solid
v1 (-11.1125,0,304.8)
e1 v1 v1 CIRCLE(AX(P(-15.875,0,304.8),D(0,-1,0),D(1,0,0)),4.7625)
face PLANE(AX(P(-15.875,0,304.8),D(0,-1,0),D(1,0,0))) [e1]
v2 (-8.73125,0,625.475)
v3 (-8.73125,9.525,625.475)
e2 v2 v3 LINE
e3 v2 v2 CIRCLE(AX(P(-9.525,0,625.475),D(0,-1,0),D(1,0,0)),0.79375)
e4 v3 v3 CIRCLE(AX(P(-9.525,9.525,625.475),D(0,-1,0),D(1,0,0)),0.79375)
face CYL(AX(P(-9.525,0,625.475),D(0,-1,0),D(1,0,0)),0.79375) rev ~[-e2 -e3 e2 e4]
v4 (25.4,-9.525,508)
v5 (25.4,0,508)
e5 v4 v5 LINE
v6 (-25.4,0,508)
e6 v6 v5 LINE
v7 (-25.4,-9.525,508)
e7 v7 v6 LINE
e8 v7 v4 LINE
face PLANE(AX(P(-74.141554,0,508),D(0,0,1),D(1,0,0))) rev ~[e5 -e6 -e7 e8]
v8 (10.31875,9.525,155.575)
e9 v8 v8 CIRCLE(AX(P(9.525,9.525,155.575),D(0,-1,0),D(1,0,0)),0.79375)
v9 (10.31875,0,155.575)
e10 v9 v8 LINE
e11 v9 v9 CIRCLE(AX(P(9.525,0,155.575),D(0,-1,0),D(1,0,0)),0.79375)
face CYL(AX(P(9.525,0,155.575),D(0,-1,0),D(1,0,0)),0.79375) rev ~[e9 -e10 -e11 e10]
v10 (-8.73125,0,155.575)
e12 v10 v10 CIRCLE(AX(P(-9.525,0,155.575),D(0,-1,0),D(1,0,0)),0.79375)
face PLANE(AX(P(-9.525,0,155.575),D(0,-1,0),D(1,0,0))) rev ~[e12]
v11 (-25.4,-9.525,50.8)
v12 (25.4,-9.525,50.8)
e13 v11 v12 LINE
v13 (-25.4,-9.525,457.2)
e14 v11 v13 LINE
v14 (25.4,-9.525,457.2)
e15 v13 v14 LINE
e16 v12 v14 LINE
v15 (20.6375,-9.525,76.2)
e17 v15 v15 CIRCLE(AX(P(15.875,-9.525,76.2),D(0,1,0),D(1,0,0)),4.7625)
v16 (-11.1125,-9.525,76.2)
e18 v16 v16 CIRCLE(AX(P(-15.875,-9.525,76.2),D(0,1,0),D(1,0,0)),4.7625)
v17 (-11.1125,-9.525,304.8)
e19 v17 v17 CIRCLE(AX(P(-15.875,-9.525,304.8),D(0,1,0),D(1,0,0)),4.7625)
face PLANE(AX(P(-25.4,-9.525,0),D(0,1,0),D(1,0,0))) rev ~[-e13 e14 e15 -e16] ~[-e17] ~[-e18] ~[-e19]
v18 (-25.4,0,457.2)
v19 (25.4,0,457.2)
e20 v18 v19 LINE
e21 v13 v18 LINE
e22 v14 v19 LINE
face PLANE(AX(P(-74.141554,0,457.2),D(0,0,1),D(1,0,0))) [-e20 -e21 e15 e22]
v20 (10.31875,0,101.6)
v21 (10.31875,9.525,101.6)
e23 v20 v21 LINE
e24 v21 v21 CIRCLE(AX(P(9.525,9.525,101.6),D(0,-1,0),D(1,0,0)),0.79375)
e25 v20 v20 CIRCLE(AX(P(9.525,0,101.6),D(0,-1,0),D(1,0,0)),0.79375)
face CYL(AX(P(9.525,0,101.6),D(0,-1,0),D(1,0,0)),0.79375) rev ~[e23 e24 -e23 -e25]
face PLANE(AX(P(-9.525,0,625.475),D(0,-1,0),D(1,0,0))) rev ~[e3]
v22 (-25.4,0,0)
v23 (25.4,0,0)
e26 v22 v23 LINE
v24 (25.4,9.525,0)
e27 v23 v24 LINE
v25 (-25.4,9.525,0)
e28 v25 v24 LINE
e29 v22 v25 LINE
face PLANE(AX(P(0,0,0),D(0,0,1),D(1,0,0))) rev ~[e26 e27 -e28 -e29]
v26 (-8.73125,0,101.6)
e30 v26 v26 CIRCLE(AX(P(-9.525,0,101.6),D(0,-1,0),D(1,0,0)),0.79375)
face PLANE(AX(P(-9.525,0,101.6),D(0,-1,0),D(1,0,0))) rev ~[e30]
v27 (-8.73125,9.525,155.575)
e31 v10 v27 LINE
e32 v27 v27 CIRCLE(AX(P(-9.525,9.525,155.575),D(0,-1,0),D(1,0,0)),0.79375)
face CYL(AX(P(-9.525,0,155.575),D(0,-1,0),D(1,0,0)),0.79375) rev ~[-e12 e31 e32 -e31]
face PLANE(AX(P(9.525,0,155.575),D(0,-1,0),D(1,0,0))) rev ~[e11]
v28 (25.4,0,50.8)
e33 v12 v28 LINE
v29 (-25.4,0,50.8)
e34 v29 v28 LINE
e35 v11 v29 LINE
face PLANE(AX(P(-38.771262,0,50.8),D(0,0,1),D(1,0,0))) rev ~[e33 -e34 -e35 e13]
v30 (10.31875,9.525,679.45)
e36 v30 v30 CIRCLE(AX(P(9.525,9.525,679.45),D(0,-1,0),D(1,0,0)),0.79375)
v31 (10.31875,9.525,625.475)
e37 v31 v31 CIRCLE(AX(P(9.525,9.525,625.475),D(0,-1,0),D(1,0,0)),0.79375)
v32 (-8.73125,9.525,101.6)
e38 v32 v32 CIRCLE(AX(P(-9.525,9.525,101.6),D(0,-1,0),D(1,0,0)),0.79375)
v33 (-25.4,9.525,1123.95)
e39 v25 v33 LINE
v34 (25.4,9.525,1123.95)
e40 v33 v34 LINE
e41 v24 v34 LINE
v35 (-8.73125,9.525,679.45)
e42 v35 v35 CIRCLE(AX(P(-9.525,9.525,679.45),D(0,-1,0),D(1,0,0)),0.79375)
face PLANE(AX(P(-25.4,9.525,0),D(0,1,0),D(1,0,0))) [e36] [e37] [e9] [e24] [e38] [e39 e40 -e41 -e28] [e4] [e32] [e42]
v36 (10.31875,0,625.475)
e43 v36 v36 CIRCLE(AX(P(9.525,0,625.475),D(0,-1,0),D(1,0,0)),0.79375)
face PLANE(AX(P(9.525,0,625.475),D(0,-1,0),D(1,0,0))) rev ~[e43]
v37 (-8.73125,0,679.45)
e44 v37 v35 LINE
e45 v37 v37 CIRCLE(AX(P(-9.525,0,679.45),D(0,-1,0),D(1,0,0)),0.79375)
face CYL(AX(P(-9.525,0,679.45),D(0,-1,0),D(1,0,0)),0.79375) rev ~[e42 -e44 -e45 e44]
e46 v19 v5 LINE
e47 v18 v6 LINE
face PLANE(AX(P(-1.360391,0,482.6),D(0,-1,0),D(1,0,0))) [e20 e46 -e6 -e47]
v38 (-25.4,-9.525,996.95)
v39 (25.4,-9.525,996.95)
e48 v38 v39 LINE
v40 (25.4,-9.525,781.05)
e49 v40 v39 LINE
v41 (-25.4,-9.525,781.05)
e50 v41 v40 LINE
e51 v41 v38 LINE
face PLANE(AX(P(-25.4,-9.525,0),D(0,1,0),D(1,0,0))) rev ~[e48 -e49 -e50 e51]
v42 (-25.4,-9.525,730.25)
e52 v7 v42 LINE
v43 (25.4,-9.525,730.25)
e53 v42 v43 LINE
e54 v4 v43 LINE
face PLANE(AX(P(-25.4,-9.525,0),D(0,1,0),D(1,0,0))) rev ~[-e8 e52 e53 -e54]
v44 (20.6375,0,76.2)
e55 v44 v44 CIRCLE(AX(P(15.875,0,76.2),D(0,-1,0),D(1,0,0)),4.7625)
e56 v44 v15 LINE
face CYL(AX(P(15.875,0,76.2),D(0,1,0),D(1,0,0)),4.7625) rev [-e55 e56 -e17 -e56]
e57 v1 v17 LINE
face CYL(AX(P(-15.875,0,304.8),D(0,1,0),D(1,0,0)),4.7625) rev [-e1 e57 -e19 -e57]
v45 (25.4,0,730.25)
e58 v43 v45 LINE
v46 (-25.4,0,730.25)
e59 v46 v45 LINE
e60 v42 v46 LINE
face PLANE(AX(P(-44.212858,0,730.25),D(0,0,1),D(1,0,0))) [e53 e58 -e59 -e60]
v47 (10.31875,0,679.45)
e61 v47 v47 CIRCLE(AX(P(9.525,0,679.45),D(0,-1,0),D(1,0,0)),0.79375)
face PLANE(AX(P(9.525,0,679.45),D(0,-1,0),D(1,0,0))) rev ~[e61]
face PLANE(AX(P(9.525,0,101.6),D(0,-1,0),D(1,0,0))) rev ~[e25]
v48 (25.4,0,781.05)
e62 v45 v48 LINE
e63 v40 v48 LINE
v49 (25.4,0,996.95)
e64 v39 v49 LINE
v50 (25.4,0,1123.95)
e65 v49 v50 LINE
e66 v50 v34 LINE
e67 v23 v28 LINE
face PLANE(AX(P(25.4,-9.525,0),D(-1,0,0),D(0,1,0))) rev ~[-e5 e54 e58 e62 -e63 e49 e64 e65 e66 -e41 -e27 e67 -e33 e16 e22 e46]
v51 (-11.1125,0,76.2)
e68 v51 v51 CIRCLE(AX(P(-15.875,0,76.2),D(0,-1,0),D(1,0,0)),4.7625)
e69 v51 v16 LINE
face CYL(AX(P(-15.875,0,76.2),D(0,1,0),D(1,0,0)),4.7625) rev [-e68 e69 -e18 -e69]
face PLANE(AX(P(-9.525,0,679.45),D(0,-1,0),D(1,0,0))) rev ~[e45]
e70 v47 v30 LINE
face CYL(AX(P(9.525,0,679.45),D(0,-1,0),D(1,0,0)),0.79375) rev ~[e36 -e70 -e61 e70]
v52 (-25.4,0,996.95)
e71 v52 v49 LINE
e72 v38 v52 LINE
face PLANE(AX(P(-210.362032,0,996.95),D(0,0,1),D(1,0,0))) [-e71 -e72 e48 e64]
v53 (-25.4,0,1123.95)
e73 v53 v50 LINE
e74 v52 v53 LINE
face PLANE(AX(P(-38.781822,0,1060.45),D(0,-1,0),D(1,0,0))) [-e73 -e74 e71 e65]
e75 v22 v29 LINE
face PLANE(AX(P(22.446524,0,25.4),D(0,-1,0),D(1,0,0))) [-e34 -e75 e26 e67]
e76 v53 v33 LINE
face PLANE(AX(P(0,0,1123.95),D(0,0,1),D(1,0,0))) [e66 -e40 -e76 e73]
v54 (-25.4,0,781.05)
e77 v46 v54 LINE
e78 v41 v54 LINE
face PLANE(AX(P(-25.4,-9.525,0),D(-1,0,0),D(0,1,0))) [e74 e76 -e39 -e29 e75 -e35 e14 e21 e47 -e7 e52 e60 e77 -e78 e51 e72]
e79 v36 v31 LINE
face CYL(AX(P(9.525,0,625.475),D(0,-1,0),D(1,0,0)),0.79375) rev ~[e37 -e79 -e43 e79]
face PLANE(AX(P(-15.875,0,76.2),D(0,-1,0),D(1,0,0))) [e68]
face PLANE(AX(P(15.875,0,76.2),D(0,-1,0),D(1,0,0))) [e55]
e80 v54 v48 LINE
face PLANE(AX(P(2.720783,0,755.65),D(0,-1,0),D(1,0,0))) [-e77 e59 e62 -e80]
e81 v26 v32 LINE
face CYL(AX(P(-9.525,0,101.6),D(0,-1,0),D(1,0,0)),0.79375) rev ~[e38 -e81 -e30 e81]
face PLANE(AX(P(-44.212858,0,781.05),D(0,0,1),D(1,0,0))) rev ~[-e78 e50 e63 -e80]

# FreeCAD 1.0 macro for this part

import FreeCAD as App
import Part
import Sketcher

V = App.Vector
Q = App.Units.Quantity


def add_polygon(sketch, points):
    """Adds a closed chain of lines whose ends are joined by coincident constraints."""
    first, n = sketch.GeometryCount, len(points)
    for a, b in zip(points, points[1:] + points[:1]):
        sketch.addGeometry(Part.LineSegment(App.Vector(*a, 0), App.Vector(*b, 0)), False)
    for i in range(n):
        sketch.addConstraint(Sketcher.Constraint("Coincident", first + i, 2, first + (i + 1) % n, 1))

doc = App.newDocument("Part")
params = doc.addObject("Spreadsheet::Sheet", "Params")
for row, (alias, value) in enumerate([
    ("sketch1_width", "2 in"),
    ("sketch1_height", "0.75 in"),
    ("pad1_length", "44.25 in"),
    ("sketch2_height", "2 in"),
    ("sketch2_height2", "5 in"),
    ("pocket1_length", "1 in"),
    ("sketch3_diameter", "0.0625 in"),
    ("pocket2_length", "1 in"),
    ("sketch4_diameter", "0.375 in"),
    ("pocket3_length", "1 in"),
], start=1):
    params.set(f"A{row}", alias)
    params.set(f"B{row}", "=" + value)
    params.setAlias(f"B{row}", alias)

body = doc.addObject("PartDesign::Body", "Body")

sketch1 = body.newObject("Sketcher::SketchObject", "Sketch")
sketch1.AttachmentSupport = (doc.getObject("XY_Plane"), [""])
sketch1.MapMode = "FlatFace"
add_polygon(sketch1, [(-25, 10), (-25, -10), (25, -10), (25, 10)])
sketch1.addConstraint([
    Sketcher.Constraint("Vertical", 0),
    Sketcher.Constraint("Horizontal", 1),
    Sketcher.Constraint("Vertical", 2),
    Sketcher.Constraint("Horizontal", 3),
    Sketcher.Constraint("Symmetric", 0, 2, 2, 2, -1, 1),
    Sketcher.Constraint("DistanceX", 1, 1, 1, 2, Q("2 in")),
    Sketcher.Constraint("DistanceY", 0, 2, 0, 1, Q("0.75 in")),
])
sketch1.setExpression("Constraints[9]", "Params.sketch1_width")
sketch1.setExpression("Constraints[10]", "Params.sketch1_height")
pad1 = body.newObject("PartDesign::Pad", "Pad")
pad1.Profile = sketch1
pad1.setExpression("Length", "Params.pad1_length")

sketch2 = body.newObject("Sketcher::SketchObject", "Sketch001")
sketch2.AttachmentSupport = (doc.getObject("XZ_Plane"), [""])
sketch2.MapMode = "FlatFace"
add_polygon(sketch2, [(-39, 51), (-39, 0), (84, 0), (84, 51)])
add_polygon(sketch2, [(-44, 781), (-44, 730), (50, 730), (50, 781)])
add_polygon(sketch2, [(-74, 508), (-74, 457), (71, 457), (71, 508)])
add_polygon(sketch2, [(-210, 1124), (-210, 997), (133, 997), (133, 1124)])
sketch2.addConstraint([
    Sketcher.Constraint("Vertical", 0),
    Sketcher.Constraint("Horizontal", 1),
    Sketcher.Constraint("Vertical", 2),
    Sketcher.Constraint("Horizontal", 3),
    Sketcher.Constraint("Vertical", 4),
    Sketcher.Constraint("Horizontal", 5),
    Sketcher.Constraint("Vertical", 6),
    Sketcher.Constraint("Horizontal", 7),
    Sketcher.Constraint("Vertical", 8),
    Sketcher.Constraint("Horizontal", 9),
    Sketcher.Constraint("Vertical", 10),
    Sketcher.Constraint("Horizontal", 11),
    Sketcher.Constraint("Vertical", 12),
    Sketcher.Constraint("Horizontal", 13),
    Sketcher.Constraint("Vertical", 14),
    Sketcher.Constraint("Horizontal", 15),
    Sketcher.Constraint("PointOnObject", 0, 2, -1),
    Sketcher.Constraint("Equal", 2, 4),
    Sketcher.Constraint("Equal", 6, 8),
    Sketcher.Constraint("DistanceY", 0, 2, 0, 1, Q("2 in")),
    Sketcher.Constraint("DistanceY", 12, 2, 12, 1, Q("5 in")),
    Sketcher.Constraint("DistanceY", -1, 1, 8, 2, Q("18 in")),
    Sketcher.Constraint("DistanceY", 7, 2, 12, 2, Q("8.5 in")),
    Sketcher.Constraint("DistanceY", -1, 1, 4, 2, Q("28.75 in")),
    Sketcher.Constraint("DistanceX", 9, 1, 9, 2, Q("5.7308002 in")),
    Sketcher.Constraint("DistanceX", 5, 1, 5, 2, Q("93.867282 mm")),
    Sketcher.Constraint("DistanceX", 13, 1, 13, 2, Q("343.160421 mm")),
    Sketcher.Constraint("DistanceX", 1, 1, 1, 2, Q("122.435573 mm")),
    Sketcher.Constraint("DistanceX", -1, 1, 1, 2, Q("83.66431 mm")),
    Sketcher.Constraint("DistanceX", -1, 1, 9, 2, Q("71.420772 mm")),
    Sketcher.Constraint("DistanceX", -1, 1, 13, 2, Q("132.798388 mm")),
    Sketcher.Constraint("DistanceX", 4, 2, 2, 2, Q("127.877168 mm")),
])
sketch2.setExpression("Constraints[35]", "Params.sketch2_height")
sketch2.setExpression("Constraints[36]", "Params.sketch2_height2")
pocket1 = body.newObject("PartDesign::Pocket", "Pocket")
pocket1.Profile = sketch2
pocket1.setExpression("Length", "Params.pocket1_length")
pocket1.Reversed = True

sketch3 = body.newObject("Sketcher::SketchObject", "Sketch002")
sketch3.AttachmentSupport = (doc.getObject("XZ_Plane"), [""])
sketch3.MapMode = "FlatFace"
sketch3.addGeometry([
    Part.Circle(V(9.5, 101.6, 0), V(0, 0, 1), 0.8),
    Part.Circle(V(9.5, 155.6, 0), V(0, 0, 1), 0.8),
    Part.Circle(V(9.5, 625.5, 0), V(0, 0, 1), 0.8),
    Part.Circle(V(9.5, 679.5, 0), V(0, 0, 1), 0.8),
    Part.Circle(V(-9.5, 625.5, 0), V(0, 0, 1), 0.8),
    Part.Circle(V(-9.5, 679.5, 0), V(0, 0, 1), 0.8),
    Part.Circle(V(-9.5, 101.6, 0), V(0, 0, 1), 0.8),
    Part.Circle(V(-9.5, 155.6, 0), V(0, 0, 1), 0.8),
], False)
sketch3.addConstraint([
    Sketcher.Constraint("Equal", 0, 1),
    Sketcher.Constraint("Equal", 1, 2),
    Sketcher.Constraint("Equal", 2, 3),
    Sketcher.Constraint("Equal", 3, 4),
    Sketcher.Constraint("Equal", 4, 5),
    Sketcher.Constraint("Equal", 5, 6),
    Sketcher.Constraint("Equal", 6, 7),
    Sketcher.Constraint("Symmetric", 2, 3, 4, 3, -2),
    Sketcher.Constraint("Symmetric", 3, 3, 5, 3, -2),
    Sketcher.Constraint("Symmetric", 0, 3, 6, 3, -2),
    Sketcher.Constraint("Symmetric", 1, 3, 7, 3, -2),
    Sketcher.Constraint("Vertical", 0, 3, 1, 3),
    Sketcher.Constraint("Vertical", 1, 3, 2, 3),
    Sketcher.Constraint("Vertical", 2, 3, 3, 3),
    Sketcher.Constraint("Diameter", 0, Q("0.0625 in")),
    Sketcher.Constraint("DistanceY", -1, 1, 0, 3, Q("4 in")),
    Sketcher.Constraint("DistanceY", 1, 3, 2, 3, Q("18.5 in")),
    Sketcher.Constraint("DistanceY", -1, 1, 3, 3, Q("26.75 in")),
    Sketcher.Constraint("DistanceX", 4, 3, 2, 3, Q("0.75 in")),
    Sketcher.Constraint("DistanceY", -1, 1, 1, 3, Q("6.125 in")),
])
sketch3.setExpression("Constraints[14]", "Params.sketch3_diameter")
pocket2 = body.newObject("PartDesign::Pocket", "Pocket001")
pocket2.Profile = sketch3
pocket2.setExpression("Length", "Params.pocket2_length")

sketch4 = body.newObject("Sketcher::SketchObject", "Sketch003")
sketch4.AttachmentSupport = (doc.getObject("XZ_Plane"), [""])
sketch4.MapMode = "FlatFace"
sketch4.addGeometry([
    Part.Circle(V(15.9, 76.2, 0), V(0, 0, 1), 4.8),
    Part.Circle(V(-15.9, 76.2, 0), V(0, 0, 1), 4.8),
    Part.Circle(V(-15.9, 304.8, 0), V(0, 0, 1), 4.8),
], False)
sketch4.addConstraint([
    Sketcher.Constraint("Equal", 0, 1),
    Sketcher.Constraint("Equal", 1, 2),
    Sketcher.Constraint("Symmetric", 0, 3, 1, 3, -2),
    Sketcher.Constraint("Vertical", 1, 3, 2, 3),
    Sketcher.Constraint("Diameter", 0, Q("0.375 in")),
    Sketcher.Constraint("DistanceY", -1, 1, 0, 3, Q("3 in")),
    Sketcher.Constraint("DistanceY", -1, 1, 2, 3, Q("12 in")),
    Sketcher.Constraint("DistanceX", 1, 3, 0, 3, Q("1.25 in")),
])
sketch4.setExpression("Constraints[4]", "Params.sketch4_diameter")
pocket3 = body.newObject("PartDesign::Pocket", "Pocket002")
pocket3.Profile = sketch4
pocket3.setExpression("Length", "Params.pocket3_length")
pocket3.Reversed = True

doc.recompute()
